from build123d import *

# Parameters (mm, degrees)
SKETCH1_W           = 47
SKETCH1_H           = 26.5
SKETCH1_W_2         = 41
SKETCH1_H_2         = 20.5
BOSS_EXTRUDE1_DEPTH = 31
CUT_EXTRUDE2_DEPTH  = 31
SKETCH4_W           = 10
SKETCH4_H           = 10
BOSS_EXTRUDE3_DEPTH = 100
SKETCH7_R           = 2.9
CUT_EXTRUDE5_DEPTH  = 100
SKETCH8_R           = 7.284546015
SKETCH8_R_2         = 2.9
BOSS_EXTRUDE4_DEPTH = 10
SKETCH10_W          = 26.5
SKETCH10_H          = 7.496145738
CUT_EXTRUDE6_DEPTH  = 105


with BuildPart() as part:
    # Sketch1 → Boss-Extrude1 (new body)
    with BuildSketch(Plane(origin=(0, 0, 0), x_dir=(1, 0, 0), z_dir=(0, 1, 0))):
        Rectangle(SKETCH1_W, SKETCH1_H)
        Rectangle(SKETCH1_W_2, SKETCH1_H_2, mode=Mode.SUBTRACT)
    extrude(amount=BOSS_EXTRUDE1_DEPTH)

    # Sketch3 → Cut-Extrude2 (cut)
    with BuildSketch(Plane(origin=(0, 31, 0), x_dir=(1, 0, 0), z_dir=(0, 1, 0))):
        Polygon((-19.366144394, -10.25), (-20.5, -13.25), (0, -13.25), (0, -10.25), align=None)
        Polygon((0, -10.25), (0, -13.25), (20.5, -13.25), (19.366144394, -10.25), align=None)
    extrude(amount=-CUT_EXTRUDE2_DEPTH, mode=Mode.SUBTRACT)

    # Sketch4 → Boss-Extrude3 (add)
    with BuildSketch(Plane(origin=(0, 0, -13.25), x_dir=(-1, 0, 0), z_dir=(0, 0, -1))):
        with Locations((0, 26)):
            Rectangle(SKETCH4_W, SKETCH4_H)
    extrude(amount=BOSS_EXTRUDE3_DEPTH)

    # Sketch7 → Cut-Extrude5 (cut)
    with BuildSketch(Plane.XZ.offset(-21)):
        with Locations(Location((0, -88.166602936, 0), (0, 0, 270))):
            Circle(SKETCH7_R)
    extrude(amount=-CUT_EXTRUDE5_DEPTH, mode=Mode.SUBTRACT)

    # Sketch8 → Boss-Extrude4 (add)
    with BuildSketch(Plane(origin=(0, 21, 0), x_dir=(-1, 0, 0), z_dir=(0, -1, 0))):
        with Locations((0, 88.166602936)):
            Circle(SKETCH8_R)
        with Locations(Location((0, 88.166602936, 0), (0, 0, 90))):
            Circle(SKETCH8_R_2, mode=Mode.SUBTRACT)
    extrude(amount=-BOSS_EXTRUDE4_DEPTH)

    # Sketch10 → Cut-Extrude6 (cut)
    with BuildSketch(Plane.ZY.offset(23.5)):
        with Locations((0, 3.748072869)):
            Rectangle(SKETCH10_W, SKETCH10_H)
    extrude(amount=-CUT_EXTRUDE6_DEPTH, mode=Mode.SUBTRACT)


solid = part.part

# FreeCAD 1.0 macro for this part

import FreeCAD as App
import Part
import Sketcher
from FreeCAD import Vector

doc = App.newDocument("Part")
body = doc.addObject("PartDesign::Body", "Body")

sketch1 = body.newObject("Sketcher::SketchObject", "Sketch")
sketch1.AttachmentSupport = (doc.getObject("XZ_Plane"), [""])
sketch1.MapMode = "FlatFace"
sketch1.addGeometry([
    Part.LineSegment(Vector(-24, -13, 0), Vector(-24, 13, 0)),
    Part.LineSegment(Vector(-24, 13, 0), Vector(24, 13, 0)),
    Part.LineSegment(Vector(24, 13, 0), Vector(24, -13, 0)),
    Part.LineSegment(Vector(24, -13, 0), Vector(-24, -13, 0)),
    Part.LineSegment(Vector(20, 10, 0), Vector(-20, 10, 0)),
    Part.LineSegment(Vector(-20, 10, 0), Vector(-20, -10, 0)),
    Part.LineSegment(Vector(-20, -10, 0), Vector(20, -10, 0)),
    Part.LineSegment(Vector(20, -10, 0), Vector(20, 10, 0)),
], False)
sketch1.addConstraint([
    Sketcher.Constraint("Coincident", 0, 2, 1, 1),
    Sketcher.Constraint("Coincident", 1, 2, 2, 1),
    Sketcher.Constraint("Coincident", 2, 2, 3, 1),
    Sketcher.Constraint("Coincident", 3, 2, 0, 1),
    Sketcher.Constraint("Coincident", 4, 2, 5, 1),
    Sketcher.Constraint("Coincident", 5, 2, 6, 1),
    Sketcher.Constraint("Coincident", 6, 2, 7, 1),
    Sketcher.Constraint("Coincident", 7, 2, 4, 1),
    Sketcher.Constraint("Vertical", 0),
    Sketcher.Constraint("Horizontal", 1),
    Sketcher.Constraint("Vertical", 2),
    Sketcher.Constraint("Horizontal", 3),
    Sketcher.Constraint("Horizontal", 4),
    Sketcher.Constraint("Vertical", 5),
    Sketcher.Constraint("Horizontal", 6),
    Sketcher.Constraint("Vertical", 7),
    Sketcher.Constraint("Symmetric", 0, 2, 2, 2, -1, 1),
    Sketcher.Constraint("Symmetric", 4, 2, 6, 2, -1, 1),
    Sketcher.Constraint("DistanceX", 1, 1, 1, 2, 47.0),
    Sketcher.Constraint("DistanceX", 4, 2, 4, 1, 41.0),
    Sketcher.Constraint("DistanceY", 0, 1, 0, 2, 26.5),
    Sketcher.Constraint("DistanceY", 5, 2, 5, 1, 20.5),
])
pad1 = body.newObject("PartDesign::Pad", "Pad")
pad1.Profile = sketch1
pad1.Length = 31
pad1.Reversed = True

sketch2 = body.newObject("Sketcher::SketchObject", "Sketch001")
sketch2.AttachmentSupport = (doc.getObject("XZ_Plane"), [""])
sketch2.MapMode = "FlatFace"
sketch2.AttachmentOffset = App.Placement(Vector(0, 0, -31), App.Rotation())
sketch2.addGeometry([
    Part.LineSegment(Vector(-19.4, 10.2, 0), Vector(-20.5, 13.2, 0)),
    Part.LineSegment(Vector(-20.5, 13.2, 0), Vector(20.5, 13.2, 0)),
    Part.LineSegment(Vector(20.5, 13.2, 0), Vector(19.4, 10.2, 0)),
    Part.LineSegment(Vector(19.4, 10.2, 0), Vector(-19.4, 10.2, 0)),
], False)
sketch2.addConstraint([
    Sketcher.Constraint("Coincident", 0, 2, 1, 1),
    Sketcher.Constraint("Coincident", 1, 2, 2, 1),
    Sketcher.Constraint("Coincident", 2, 2, 3, 1),
    Sketcher.Constraint("Coincident", 3, 2, 0, 1),
    Sketcher.Constraint("Horizontal", 1),
    Sketcher.Constraint("Horizontal", 3),
    Sketcher.Constraint("Equal", 0, 2),
    Sketcher.Constraint("DistanceX", 1, 1, 1, 2, 41.0),
    Sketcher.Constraint("DistanceY", 2, 2, 1, 2, 3.0),
    Sketcher.Constraint("DistanceX", 0, 2, -1, 1, 20.5),
    Sketcher.Constraint("DistanceY", -1, 1, 0, 2, 13.25),
    Sketcher.Constraint("DistanceX", 3, 2, 3, 1, 38.732289),
])
pocket1 = body.newObject("PartDesign::Pocket", "Pocket")
pocket1.Profile = sketch2
pocket1.Length = 31
pocket1.Reversed = True

sketch3 = body.newObject("Sketcher::SketchObject", "Sketch002")
sketch3.AttachmentSupport = (doc.getObject("XY_Plane"), [""])
sketch3.MapMode = "FlatFace"
sketch3.AttachmentOffset = App.Placement(Vector(0, 0, -13.25), App.Rotation())
sketch3.addGeometry([
    Part.LineSegment(Vector(5, 31, 0), Vector(5, 21, 0)),
    Part.LineSegment(Vector(5, 21, 0), Vector(-5, 21, 0)),
    Part.LineSegment(Vector(-5, 21, 0), Vector(-5, 31, 0)),
    Part.LineSegment(Vector(-5, 31, 0), Vector(5, 31, 0)),
], False)
sketch3.addConstraint([
    Sketcher.Constraint("Coincident", 0, 2, 1, 1),
    Sketcher.Constraint("Coincident", 1, 2, 2, 1),
    Sketcher.Constraint("Coincident", 2, 2, 3, 1),
    Sketcher.Constraint("Coincident", 3, 2, 0, 1),
    Sketcher.Constraint("Vertical", 0),
    Sketcher.Constraint("Horizontal", 1),
    Sketcher.Constraint("Vertical", 2),
    Sketcher.Constraint("Horizontal", 3),
    Sketcher.Constraint("Equal", 3, 0),
    Sketcher.Constraint("DistanceX", 1, 2, 1, 1, 10.0),
    Sketcher.Constraint("DistanceX", -1, 1, 0, 2, 5.0),
    Sketcher.Constraint("DistanceY", -1, 1, 0, 2, 21.0),
])
pad2 = body.newObject("PartDesign::Pad", "Pad001")
pad2.Profile = sketch3
pad2.Length = 100
pad2.Reversed = True

sketch4 = body.newObject("Sketcher::SketchObject", "Sketch003")
sketch4.AttachmentSupport = (doc.getObject("XZ_Plane"), [""])
sketch4.MapMode = "FlatFace"
sketch4.AttachmentOffset = App.Placement(Vector(0, 0, -21), App.Rotation())
sketch4.addGeometry(Part.Circle(Vector(0, -88.2, 0), Vector(0, 0, 1), 2.9), False)
sketch4.addConstraint([
    Sketcher.Constraint("PointOnObject", 0, 3, -2),
    Sketcher.Constraint("Diameter", 0, 5.8),
    Sketcher.Constraint("DistanceY", 0, 3, -1, 1, 88.166603),
])
pocket2 = body.newObject("PartDesign::Pocket", "Pocket001")
pocket2.Profile = sketch4
pocket2.Length = 100

sketch5 = body.newObject("Sketcher::SketchObject", "Sketch004")
sketch5.AttachmentSupport = (doc.getObject("XZ_Plane"), [""])
sketch5.MapMode = "FlatFace"
sketch5.AttachmentOffset = App.Placement(Vector(0, 0, -21), App.Rotation())
sketch5.addGeometry([
    Part.Circle(Vector(0, -88.2, 0), Vector(0, 0, 1), 7.3),
    Part.Circle(Vector(0, -88.2, 0), Vector(0, 0, 1), 2.9),
], False)
sketch5.addConstraint([
    Sketcher.Constraint("Coincident", 1, 3, 0, 3),
    Sketcher.Constraint("PointOnObject", 0, 3, -2),
    Sketcher.Constraint("Diameter", 1, 5.8),
    Sketcher.Constraint("Diameter", 0, 14.569092),
    Sketcher.Constraint("DistanceY", 0, 3, -1, 1, 88.166603),
])
pad3 = body.newObject("PartDesign::Pad", "Pad002")
pad3.Profile = sketch5
pad3.Length = 10
pad3.Reversed = True

sketch6 = body.newObject("Sketcher::SketchObject", "Sketch005")
sketch6.AttachmentSupport = (doc.getObject("YZ_Plane"), [""])
sketch6.MapMode = "FlatFace"
sketch6.AttachmentOffset = App.Placement(Vector(0, 0, -23.5), App.Rotation())
sketch6.addGeometry([
    Part.LineSegment(Vector(7, -13, 0), Vector(0, -13, 0)),
    Part.LineSegment(Vector(0, -13, 0), Vector(0, 13, 0)),
    Part.LineSegment(Vector(0, 13, 0), Vector(7, 13, 0)),
    Part.LineSegment(Vector(7, 13, 0), Vector(7, -13, 0)),
], False)
sketch6.addConstraint([
    Sketcher.Constraint("Coincident", 0, 2, 1, 1),
    Sketcher.Constraint("Coincident", 1, 2, 2, 1),
    Sketcher.Constraint("Coincident", 2, 2, 3, 1),
    Sketcher.Constraint("Coincident", 3, 2, 0, 1),
    Sketcher.Constraint("Horizontal", 0),
    Sketcher.Constraint("Vertical", 1),
    Sketcher.Constraint("Horizontal", 2),
    Sketcher.Constraint("Vertical", 3),
    Sketcher.Constraint("Symmetric", 0, 2, 1, 2, -1, 1),
    Sketcher.Constraint("DistanceY", 1, 1, 1, 2, 26.5),
    Sketcher.Constraint("DistanceX", 0, 2, 0, 1, 7.496146),
])
pocket3 = body.newObject("PartDesign::Pocket", "Pocket002")
pocket3.Profile = sketch6
pocket3.Length = 105
pocket3.Reversed = True

doc.recompute()
